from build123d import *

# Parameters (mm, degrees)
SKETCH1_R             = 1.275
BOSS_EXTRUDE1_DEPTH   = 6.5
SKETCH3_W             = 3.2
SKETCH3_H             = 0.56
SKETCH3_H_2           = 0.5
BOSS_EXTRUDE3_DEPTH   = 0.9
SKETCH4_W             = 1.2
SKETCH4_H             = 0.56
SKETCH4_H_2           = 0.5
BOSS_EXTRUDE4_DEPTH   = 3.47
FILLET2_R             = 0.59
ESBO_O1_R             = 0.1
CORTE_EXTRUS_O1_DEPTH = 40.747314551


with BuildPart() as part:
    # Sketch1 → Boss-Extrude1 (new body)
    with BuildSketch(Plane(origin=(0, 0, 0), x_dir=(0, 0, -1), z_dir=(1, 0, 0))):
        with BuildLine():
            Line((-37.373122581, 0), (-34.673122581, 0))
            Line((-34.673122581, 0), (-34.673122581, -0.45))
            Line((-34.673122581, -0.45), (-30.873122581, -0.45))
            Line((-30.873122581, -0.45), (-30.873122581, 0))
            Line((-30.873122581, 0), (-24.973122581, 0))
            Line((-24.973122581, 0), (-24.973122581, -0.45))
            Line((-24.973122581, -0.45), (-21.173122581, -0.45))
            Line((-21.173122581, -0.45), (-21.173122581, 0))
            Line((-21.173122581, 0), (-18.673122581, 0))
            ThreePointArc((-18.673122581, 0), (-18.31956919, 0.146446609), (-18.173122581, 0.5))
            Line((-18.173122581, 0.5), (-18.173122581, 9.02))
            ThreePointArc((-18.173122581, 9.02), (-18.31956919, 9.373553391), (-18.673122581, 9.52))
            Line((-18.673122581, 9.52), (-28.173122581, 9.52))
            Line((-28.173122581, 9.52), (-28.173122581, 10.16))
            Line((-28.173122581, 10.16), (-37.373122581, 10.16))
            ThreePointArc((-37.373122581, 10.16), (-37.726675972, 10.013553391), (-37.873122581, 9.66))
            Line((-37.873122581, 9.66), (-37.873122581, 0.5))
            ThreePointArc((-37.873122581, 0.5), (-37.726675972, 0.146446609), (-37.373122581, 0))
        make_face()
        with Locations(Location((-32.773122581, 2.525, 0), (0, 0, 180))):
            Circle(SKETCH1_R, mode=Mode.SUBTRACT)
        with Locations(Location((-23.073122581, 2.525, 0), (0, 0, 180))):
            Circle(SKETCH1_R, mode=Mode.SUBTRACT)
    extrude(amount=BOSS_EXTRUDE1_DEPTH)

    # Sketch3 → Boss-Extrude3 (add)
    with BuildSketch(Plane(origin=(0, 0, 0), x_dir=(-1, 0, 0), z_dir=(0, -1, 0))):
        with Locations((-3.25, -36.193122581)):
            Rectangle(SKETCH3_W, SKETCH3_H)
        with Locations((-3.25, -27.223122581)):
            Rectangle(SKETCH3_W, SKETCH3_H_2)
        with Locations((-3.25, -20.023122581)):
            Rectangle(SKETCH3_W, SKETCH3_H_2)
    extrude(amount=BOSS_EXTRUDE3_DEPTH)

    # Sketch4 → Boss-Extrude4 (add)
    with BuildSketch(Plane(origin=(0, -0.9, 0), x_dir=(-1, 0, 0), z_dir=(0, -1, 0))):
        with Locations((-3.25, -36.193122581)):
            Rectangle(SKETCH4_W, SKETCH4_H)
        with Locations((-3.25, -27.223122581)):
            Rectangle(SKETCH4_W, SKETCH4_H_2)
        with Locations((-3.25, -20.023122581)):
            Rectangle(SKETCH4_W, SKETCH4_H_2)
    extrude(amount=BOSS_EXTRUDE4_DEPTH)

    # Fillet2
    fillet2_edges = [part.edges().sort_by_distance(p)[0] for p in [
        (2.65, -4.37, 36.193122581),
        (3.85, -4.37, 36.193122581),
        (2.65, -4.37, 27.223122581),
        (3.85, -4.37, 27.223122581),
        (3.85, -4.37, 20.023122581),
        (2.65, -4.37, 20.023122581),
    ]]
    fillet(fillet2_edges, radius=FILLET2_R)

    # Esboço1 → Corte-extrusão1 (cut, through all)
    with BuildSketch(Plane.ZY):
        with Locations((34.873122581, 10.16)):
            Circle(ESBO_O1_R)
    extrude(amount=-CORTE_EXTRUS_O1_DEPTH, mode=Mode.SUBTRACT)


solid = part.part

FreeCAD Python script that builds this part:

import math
import FreeCAD as App
import Part
import Sketcher
from FreeCAD import Vector


def edges_at(feature, points):
    """Names of the edges that pass closest to the given points."""
    edges = feature.Shape.Edges
    near = lambda p: min(range(len(edges)), key=lambda i: edges[i].distToShape(Part.Vertex(*p))[0])
    return sorted({f"Edge{near(p) + 1}" for p in points})

doc = App.newDocument("Part")
body = doc.addObject("PartDesign::Body", "Body")

# Sketch on YZ plane
sketch1 = body.newObject("Sketcher::SketchObject", "Sketch")
sketch1.AttachmentSupport = (doc.getObject("YZ_Plane"), [""])
sketch1.MapMode = "FlatFace"
sketch1.addGeometry(Part.LineSegment(Vector(0, 37.37, 0), Vector(0, 34.67, 0)), False)
sketch1.addGeometry(Part.LineSegment(Vector(0, 34.67, 0), Vector(-0.45, 34.67, 0)), False)
sketch1.addGeometry(Part.LineSegment(Vector(-0.45, 34.67, 0), Vector(-0.45, 30.87, 0)), False)
sketch1.addGeometry(Part.LineSegment(Vector(-0.45, 30.87, 0), Vector(0, 30.87, 0)), False)
sketch1.addGeometry(Part.LineSegment(Vector(0, 30.87, 0), Vector(0, 24.97, 0)), False)
sketch1.addGeometry(Part.LineSegment(Vector(0, 24.97, 0), Vector(-0.45, 24.97, 0)), False)
sketch1.addGeometry(Part.LineSegment(Vector(-0.45, 24.97, 0), Vector(-0.45, 21.17, 0)), False)
sketch1.addGeometry(Part.LineSegment(Vector(-0.45, 21.17, 0), Vector(0, 21.17, 0)), False)
sketch1.addGeometry(Part.LineSegment(Vector(0, 21.17, 0), Vector(0, 18.67, 0)), False)
sketch1.addGeometry(Part.ArcOfCircle(Part.Circle(Vector(0.5, 18.67, 0), Vector(0, 0, 1), 0.5), math.radians(180), math.radians(270)), False)
sketch1.addGeometry(Part.LineSegment(Vector(0.5, 18.17, 0), Vector(9.02, 18.17, 0)), False)
sketch1.addGeometry(Part.ArcOfCircle(Part.Circle(Vector(9.02, 18.67, 0), Vector(0, 0, 1), 0.5), math.radians(-90), math.radians(0)), False)
sketch1.addGeometry(Part.LineSegment(Vector(9.52, 18.67, 0), Vector(9.52, 28.17, 0)), False)
sketch1.addGeometry(Part.LineSegment(Vector(9.52, 28.17, 0), Vector(10.16, 28.17, 0)), False)
sketch1.addGeometry(Part.LineSegment(Vector(10.16, 28.17, 0), Vector(10.16, 37.37, 0)), False)
sketch1.addGeometry(Part.ArcOfCircle(Part.Circle(Vector(9.66, 37.37, 0), Vector(0, 0, 1), 0.5), math.radians(0), math.radians(90)), False)
sketch1.addGeometry(Part.LineSegment(Vector(9.66, 37.87, 0), Vector(0.5, 37.87, 0)), False)
sketch1.addGeometry(Part.ArcOfCircle(Part.Circle(Vector(0.5, 37.37, 0), Vector(0, 0, 1), 0.5), math.radians(90), math.radians(180)), False)
sketch1.addGeometry(Part.Circle(Vector(2.52, 32.77, 0), Vector(0, 0, 1), 1.27), False)
sketch1.addGeometry(Part.Circle(Vector(2.52, 23.07, 0), Vector(0, 0, 1), 1.27), False)
sketch1.addConstraint(Sketcher.Constraint("Coincident", 0, 2, 1, 1))
sketch1.addConstraint(Sketcher.Constraint("Coincident", 1, 2, 2, 1))
sketch1.addConstraint(Sketcher.Constraint("Coincident", 2, 2, 3, 1))
sketch1.addConstraint(Sketcher.Constraint("Coincident", 3, 2, 4, 1))
sketch1.addConstraint(Sketcher.Constraint("Coincident", 4, 2, 5, 1))
sketch1.addConstraint(Sketcher.Constraint("Coincident", 5, 2, 6, 1))
sketch1.addConstraint(Sketcher.Constraint("Coincident", 6, 2, 7, 1))
sketch1.addConstraint(Sketcher.Constraint("Coincident", 7, 2, 8, 1))
sketch1.addConstraint(Sketcher.Constraint("Tangent", 8, 2, 9, 1))
sketch1.addConstraint(Sketcher.Constraint("Tangent", 9, 2, 10, 1))
sketch1.addConstraint(Sketcher.Constraint("Tangent", 10, 2, 11, 1))
sketch1.addConstraint(Sketcher.Constraint("Tangent", 11, 2, 12, 1))
sketch1.addConstraint(Sketcher.Constraint("Coincident", 12, 2, 13, 1))
sketch1.addConstraint(Sketcher.Constraint("Coincident", 13, 2, 14, 1))
sketch1.addConstraint(Sketcher.Constraint("Tangent", 14, 2, 15, 1))
sketch1.addConstraint(Sketcher.Constraint("Tangent", 15, 2, 16, 1))
sketch1.addConstraint(Sketcher.Constraint("Tangent", 16, 2, 17, 1))
sketch1.addConstraint(Sketcher.Constraint("Tangent", 17, 2, 0, 1))
sketch1.addConstraint(Sketcher.Constraint("Vertical", 0))
sketch1.addConstraint(Sketcher.Constraint("Horizontal", 1))
sketch1.addConstraint(Sketcher.Constraint("Vertical", 2))
sketch1.addConstraint(Sketcher.Constraint("Horizontal", 3))
sketch1.addConstraint(Sketcher.Constraint("Vertical", 4))
sketch1.addConstraint(Sketcher.Constraint("Horizontal", 5))
sketch1.addConstraint(Sketcher.Constraint("Vertical", 6))
sketch1.addConstraint(Sketcher.Constraint("Horizontal", 7))
sketch1.addConstraint(Sketcher.Constraint("Vertical", 8))
sketch1.addConstraint(Sketcher.Constraint("Horizontal", 10))
sketch1.addConstraint(Sketcher.Constraint("Vertical", 12))
sketch1.addConstraint(Sketcher.Constraint("Horizontal", 13))
sketch1.addConstraint(Sketcher.Constraint("Vertical", 14))
sketch1.addConstraint(Sketcher.Constraint("Horizontal", 16))
sketch1.addConstraint(Sketcher.Constraint("Equal", 9, 11))
sketch1.addConstraint(Sketcher.Constraint("Equal", 11, 15))
sketch1.addConstraint(Sketcher.Constraint("Equal", 15, 17))
sketch1.addConstraint(Sketcher.Constraint("Equal", 18, 19))
sketch1.addConstraint(Sketcher.Constraint("PointOnObject", 0, 2, -2))
sketch1.addConstraint(Sketcher.Constraint("PointOnObject", 3, 2, -2))
sketch1.addConstraint(Sketcher.Constraint("PointOnObject", 7, 2, -2))
sketch1.addConstraint(Sketcher.Constraint("Vertical", 18, 3, 19, 3))
sketch1.addConstraint(Sketcher.Constraint("Vertical", 2, 2, 5, 2))
sketch1.addConstraint(Sketcher.Constraint("Equal", 2, 6))
sketch1.addConstraint(Sketcher.Constraint("Radius", 9, 0.5))
sketch1.addConstraint(Sketcher.Constraint("Diameter", 18, 2.55))
sketch1.addConstraint(Sketcher.Constraint("DistanceY", 0, 2, 0, 1, 2.7))
sketch1.addConstraint(Sketcher.Constraint("DistanceY", 2, 2, 2, 1, 3.8))
sketch1.addConstraint(Sketcher.Constraint("DistanceY", 4, 2, 4, 1, 5.9))
sketch1.addConstraint(Sketcher.Constraint("DistanceY", 8, 2, 8, 1, 2.5))
sketch1.addConstraint(Sketcher.Constraint("DistanceY", 12, 1, 12, 2, 9.5))
sketch1.addConstraint(Sketcher.Constraint("DistanceX", 1, 2, 1, 1, 0.45))
sketch1.addConstraint(Sketcher.Constraint("DistanceX", 10, 1, 10, 2, 8.52))
sketch1.addConstraint(Sketcher.Constraint("DistanceX", 13, 1, 13, 2, 0.64))
sketch1.addConstraint(Sketcher.Constraint("DistanceY", 18, 3, 17, 3, 4.6))
sketch1.addConstraint(Sketcher.Constraint("DistanceY", 9, 3, 19, 3, 4.4))
sketch1.addConstraint(Sketcher.Constraint("DistanceX", -1, 1, 18, 3, 2.525))
sketch1.addConstraint(Sketcher.Constraint("DistanceY", -1, 1, 9, 3, 18.673123))
pad1 = body.newObject("PartDesign::Pad", "Pad")
pad1.Profile = sketch1
pad1.Length = 6.5

# Sketch on XZ plane
sketch2 = body.newObject("Sketcher::SketchObject", "Sketch001")
sketch2.AttachmentSupport = (doc.getObject("XZ_Plane"), [""])
sketch2.MapMode = "FlatFace"
sketch2.addGeometry(Part.LineSegment(Vector(4.8, 35.9, 0), Vector(4.8, 36.5, 0)), False)
sketch2.addGeometry(Part.LineSegment(Vector(4.8, 36.5, 0), Vector(1.6, 36.5, 0)), False)
sketch2.addGeometry(Part.LineSegment(Vector(1.6, 36.5, 0), Vector(1.6, 35.9, 0)), False)
sketch2.addGeometry(Part.LineSegment(Vector(1.6, 35.9, 0), Vector(4.8, 35.9, 0)), False)
sketch2.addGeometry(Part.LineSegment(Vector(4.8, 27, 0), Vector(4.8, 27.5, 0)), False)
sketch2.addGeometry(Part.LineSegment(Vector(4.8, 27.5, 0), Vector(1.6, 27.5, 0)), False)
sketch2.addGeometry(Part.LineSegment(Vector(1.6, 27.5, 0), Vector(1.6, 27, 0)), False)
sketch2.addGeometry(Part.LineSegment(Vector(1.6, 27, 0), Vector(4.8, 27, 0)), False)
sketch2.addGeometry(Part.LineSegment(Vector(4.8, 19.8, 0), Vector(4.8, 20.3, 0)), False)
sketch2.addGeometry(Part.LineSegment(Vector(4.8, 20.3, 0), Vector(1.6, 20.3, 0)), False)
sketch2.addGeometry(Part.LineSegment(Vector(1.6, 20.3, 0), Vector(1.6, 19.8, 0)), False)
sketch2.addGeometry(Part.LineSegment(Vector(1.6, 19.8, 0), Vector(4.8, 19.8, 0)), False)
sketch2.addConstraint(Sketcher.Constraint("Coincident", 0, 2, 1, 1))
sketch2.addConstraint(Sketcher.Constraint("Coincident", 1, 2, 2, 1))
sketch2.addConstraint(Sketcher.Constraint("Coincident", 2, 2, 3, 1))
sketch2.addConstraint(Sketcher.Constraint("Coincident", 3, 2, 0, 1))
sketch2.addConstraint(Sketcher.Constraint("Coincident", 4, 2, 5, 1))
sketch2.addConstraint(Sketcher.Constraint("Coincident", 5, 2, 6, 1))
sketch2.addConstraint(Sketcher.Constraint("Coincident", 6, 2, 7, 1))
sketch2.addConstraint(Sketcher.Constraint("Coincident", 7, 2, 4, 1))
sketch2.addConstraint(Sketcher.Constraint("Coincident", 8, 2, 9, 1))
sketch2.addConstraint(Sketcher.Constraint("Coincident", 9, 2, 10, 1))
sketch2.addConstraint(Sketcher.Constraint("Coincident", 10, 2, 11, 1))
sketch2.addConstraint(Sketcher.Constraint("Coincident", 11, 2, 8, 1))
sketch2.addConstraint(Sketcher.Constraint("Vertical", 0))
sketch2.addConstraint(Sketcher.Constraint("Horizontal", 1))
sketch2.addConstraint(Sketcher.Constraint("Vertical", 2))
sketch2.addConstraint(Sketcher.Constraint("Horizontal", 3))
sketch2.addConstraint(Sketcher.Constraint("Vertical", 4))
sketch2.addConstraint(Sketcher.Constraint("Horizontal", 5))
sketch2.addConstraint(Sketcher.Constraint("Vertical", 6))
sketch2.addConstraint(Sketcher.Constraint("Horizontal", 7))
sketch2.addConstraint(Sketcher.Constraint("Vertical", 8))
sketch2.addConstraint(Sketcher.Constraint("Horizontal", 9))
sketch2.addConstraint(Sketcher.Constraint("Vertical", 10))
sketch2.addConstraint(Sketcher.Constraint("Horizontal", 11))
sketch2.addConstraint(Sketcher.Constraint("Vertical", 3, 2, 4, 2))
sketch2.addConstraint(Sketcher.Constraint("Vertical", 2, 2, 5, 2))
sketch2.addConstraint(Sketcher.Constraint("Vertical", 7, 2, 8, 2))
sketch2.addConstraint(Sketcher.Constraint("Vertical", 6, 2, 9, 2))
sketch2.addConstraint(Sketcher.Constraint("Equal", 6, 8))
sketch2.addConstraint(Sketcher.Constraint("DistanceX", 1, 2, 1, 1, 3.2))
sketch2.addConstraint(Sketcher.Constraint("DistanceY", 4, 1, 4, 2, 0.5))
sketch2.addConstraint(Sketcher.Constraint("DistanceY", 4, 2, 0, 2, 9.0))
sketch2.addConstraint(Sketcher.Constraint("DistanceY", 0, 1, 0, 2, 0.56))
sketch2.addConstraint(Sketcher.Constraint("DistanceY", 8, 2, 7, 2, 6.7))
sketch2.addConstraint(Sketcher.Constraint("DistanceX", -1, 1, 0, 2, 4.85))
sketch2.addConstraint(Sketcher.Constraint("DistanceY", -1, 1, 0, 2, 36.473123))
pad2 = body.newObject("PartDesign::Pad", "Pad001")
pad2.Profile = sketch2
pad2.Length = 0.9

# Sketch on XZ plane
sketch3 = body.newObject("Sketcher::SketchObject", "Sketch002")
sketch3.AttachmentSupport = (doc.getObject("XZ_Plane"), [""])
sketch3.MapMode = "FlatFace"
sketch3.AttachmentOffset = App.Placement(Vector(0, 0, 0.9), App.Rotation())
sketch3.addGeometry(Part.LineSegment(Vector(3.9, 35.9, 0), Vector(3.9, 36.5, 0)), False)
sketch3.addGeometry(Part.LineSegment(Vector(3.9, 36.5, 0), Vector(2.6, 36.5, 0)), False)
sketch3.addGeometry(Part.LineSegment(Vector(2.6, 36.5, 0), Vector(2.6, 35.9, 0)), False)
sketch3.addGeometry(Part.LineSegment(Vector(2.6, 35.9, 0), Vector(3.9, 35.9, 0)), False)
sketch3.addGeometry(Part.LineSegment(Vector(3.9, 27, 0), Vector(3.9, 27.5, 0)), False)
sketch3.addGeometry(Part.LineSegment(Vector(3.9, 27.5, 0), Vector(2.6, 27.5, 0)), False)
sketch3.addGeometry(Part.LineSegment(Vector(2.6, 27.5, 0), Vector(2.6, 27, 0)), False)
sketch3.addGeometry(Part.LineSegment(Vector(2.6, 27, 0), Vector(3.9, 27, 0)), False)
sketch3.addGeometry(Part.LineSegment(Vector(3.9, 19.8, 0), Vector(3.9, 20.3, 0)), False)
sketch3.addGeometry(Part.LineSegment(Vector(3.9, 20.3, 0), Vector(2.6, 20.3, 0)), False)
sketch3.addGeometry(Part.LineSegment(Vector(2.6, 20.3, 0), Vector(2.6, 19.8, 0)), False)
sketch3.addGeometry(Part.LineSegment(Vector(2.6, 19.8, 0), Vector(3.9, 19.8, 0)), False)
sketch3.addConstraint(Sketcher.Constraint("Coincident", 0, 2, 1, 1))
sketch3.addConstraint(Sketcher.Constraint("Coincident", 1, 2, 2, 1))
sketch3.addConstraint(Sketcher.Constraint("Coincident", 2, 2, 3, 1))
sketch3.addConstraint(Sketcher.Constraint("Coincident", 3, 2, 0, 1))
sketch3.addConstraint(Sketcher.Constraint("Coincident", 4, 2, 5, 1))
sketch3.addConstraint(Sketcher.Constraint("Coincident", 5, 2, 6, 1))
sketch3.addConstraint(Sketcher.Constraint("Coincident", 6, 2, 7, 1))
sketch3.addConstraint(Sketcher.Constraint("Coincident", 7, 2, 4, 1))
sketch3.addConstraint(Sketcher.Constraint("Coincident", 8, 2, 9, 1))
sketch3.addConstraint(Sketcher.Constraint("Coincident", 9, 2, 10, 1))
sketch3.addConstraint(Sketcher.Constraint("Coincident", 10, 2, 11, 1))
sketch3.addConstraint(Sketcher.Constraint("Coincident", 11, 2, 8, 1))
sketch3.addConstraint(Sketcher.Constraint("Vertical", 0))
sketch3.addConstraint(Sketcher.Constraint("Horizontal", 1))
sketch3.addConstraint(Sketcher.Constraint("Vertical", 2))
sketch3.addConstraint(Sketcher.Constraint("Horizontal", 3))
sketch3.addConstraint(Sketcher.Constraint("Vertical", 4))
sketch3.addConstraint(Sketcher.Constraint("Horizontal", 5))
sketch3.addConstraint(Sketcher.Constraint("Vertical", 6))
sketch3.addConstraint(Sketcher.Constraint("Horizontal", 7))
sketch3.addConstraint(Sketcher.Constraint("Vertical", 8))
sketch3.addConstraint(Sketcher.Constraint("Horizontal", 9))
sketch3.addConstraint(Sketcher.Constraint("Vertical", 10))
sketch3.addConstraint(Sketcher.Constraint("Horizontal", 11))
sketch3.addConstraint(Sketcher.Constraint("Vertical", 3, 2, 4, 2))
sketch3.addConstraint(Sketcher.Constraint("Vertical", 2, 2, 5, 2))
sketch3.addConstraint(Sketcher.Constraint("Vertical", 7, 2, 8, 2))
sketch3.addConstraint(Sketcher.Constraint("Vertical", 6, 2, 9, 2))
sketch3.addConstraint(Sketcher.Constraint("Equal", 6, 8))
sketch3.addConstraint(Sketcher.Constraint("DistanceX", 1, 2, 1, 1, 1.2))
sketch3.addConstraint(Sketcher.Constraint("DistanceY", 4, 1, 4, 2, 0.5))
sketch3.addConstraint(Sketcher.Constraint("DistanceY", 4, 2, 0, 2, 9.0))
sketch3.addConstraint(Sketcher.Constraint("DistanceY", 0, 1, 0, 2, 0.56))
sketch3.addConstraint(Sketcher.Constraint("DistanceY", 8, 2, 7, 2, 6.7))
sketch3.addConstraint(Sketcher.Constraint("DistanceX", -1, 1, 0, 2, 3.85))
sketch3.addConstraint(Sketcher.Constraint("DistanceY", -1, 1, 0, 2, 36.473123))
pad3 = body.newObject("PartDesign::Pad", "Pad002")
pad3.Profile = sketch3
pad3.Length = 3.47
doc.recompute()

fillet = body.newObject("PartDesign::Fillet", "Fillet")
fillet.Base = (pad3, edges_at(pad3, [
    (2.65, -4.37, 36.193),
    (3.85, -4.37, 36.193),
    (2.65, -4.37, 27.223),
    (3.85, -4.37, 27.223),
    (3.85, -4.37, 20.023),
    (2.65, -4.37, 20.023),
]))
fillet.Radius = 0.59

# Sketch on YZ plane
sketch4 = body.newObject("Sketcher::SketchObject", "Sketch003")
sketch4.AttachmentSupport = (doc.getObject("YZ_Plane"), [""])
sketch4.MapMode = "FlatFace"
sketch4.addGeometry(Part.Circle(Vector(10.16, 34.87, 0), Vector(0, 0, 1), 0.1), False)
sketch4.addConstraint(Sketcher.Constraint("Diameter", 0, 0.2))
sketch4.addConstraint(Sketcher.Constraint("DistanceX", -1, 1, 0, 3, 10.16))
sketch4.addConstraint(Sketcher.Constraint("DistanceY", -1, 1, 0, 3, 34.873123))
pocket1 = body.newObject("PartDesign::Pocket", "Pocket")
pocket1.Profile = sketch4
pocket1.Type = "ThroughAll"
pocket1.Reversed = True

doc.recompute()
